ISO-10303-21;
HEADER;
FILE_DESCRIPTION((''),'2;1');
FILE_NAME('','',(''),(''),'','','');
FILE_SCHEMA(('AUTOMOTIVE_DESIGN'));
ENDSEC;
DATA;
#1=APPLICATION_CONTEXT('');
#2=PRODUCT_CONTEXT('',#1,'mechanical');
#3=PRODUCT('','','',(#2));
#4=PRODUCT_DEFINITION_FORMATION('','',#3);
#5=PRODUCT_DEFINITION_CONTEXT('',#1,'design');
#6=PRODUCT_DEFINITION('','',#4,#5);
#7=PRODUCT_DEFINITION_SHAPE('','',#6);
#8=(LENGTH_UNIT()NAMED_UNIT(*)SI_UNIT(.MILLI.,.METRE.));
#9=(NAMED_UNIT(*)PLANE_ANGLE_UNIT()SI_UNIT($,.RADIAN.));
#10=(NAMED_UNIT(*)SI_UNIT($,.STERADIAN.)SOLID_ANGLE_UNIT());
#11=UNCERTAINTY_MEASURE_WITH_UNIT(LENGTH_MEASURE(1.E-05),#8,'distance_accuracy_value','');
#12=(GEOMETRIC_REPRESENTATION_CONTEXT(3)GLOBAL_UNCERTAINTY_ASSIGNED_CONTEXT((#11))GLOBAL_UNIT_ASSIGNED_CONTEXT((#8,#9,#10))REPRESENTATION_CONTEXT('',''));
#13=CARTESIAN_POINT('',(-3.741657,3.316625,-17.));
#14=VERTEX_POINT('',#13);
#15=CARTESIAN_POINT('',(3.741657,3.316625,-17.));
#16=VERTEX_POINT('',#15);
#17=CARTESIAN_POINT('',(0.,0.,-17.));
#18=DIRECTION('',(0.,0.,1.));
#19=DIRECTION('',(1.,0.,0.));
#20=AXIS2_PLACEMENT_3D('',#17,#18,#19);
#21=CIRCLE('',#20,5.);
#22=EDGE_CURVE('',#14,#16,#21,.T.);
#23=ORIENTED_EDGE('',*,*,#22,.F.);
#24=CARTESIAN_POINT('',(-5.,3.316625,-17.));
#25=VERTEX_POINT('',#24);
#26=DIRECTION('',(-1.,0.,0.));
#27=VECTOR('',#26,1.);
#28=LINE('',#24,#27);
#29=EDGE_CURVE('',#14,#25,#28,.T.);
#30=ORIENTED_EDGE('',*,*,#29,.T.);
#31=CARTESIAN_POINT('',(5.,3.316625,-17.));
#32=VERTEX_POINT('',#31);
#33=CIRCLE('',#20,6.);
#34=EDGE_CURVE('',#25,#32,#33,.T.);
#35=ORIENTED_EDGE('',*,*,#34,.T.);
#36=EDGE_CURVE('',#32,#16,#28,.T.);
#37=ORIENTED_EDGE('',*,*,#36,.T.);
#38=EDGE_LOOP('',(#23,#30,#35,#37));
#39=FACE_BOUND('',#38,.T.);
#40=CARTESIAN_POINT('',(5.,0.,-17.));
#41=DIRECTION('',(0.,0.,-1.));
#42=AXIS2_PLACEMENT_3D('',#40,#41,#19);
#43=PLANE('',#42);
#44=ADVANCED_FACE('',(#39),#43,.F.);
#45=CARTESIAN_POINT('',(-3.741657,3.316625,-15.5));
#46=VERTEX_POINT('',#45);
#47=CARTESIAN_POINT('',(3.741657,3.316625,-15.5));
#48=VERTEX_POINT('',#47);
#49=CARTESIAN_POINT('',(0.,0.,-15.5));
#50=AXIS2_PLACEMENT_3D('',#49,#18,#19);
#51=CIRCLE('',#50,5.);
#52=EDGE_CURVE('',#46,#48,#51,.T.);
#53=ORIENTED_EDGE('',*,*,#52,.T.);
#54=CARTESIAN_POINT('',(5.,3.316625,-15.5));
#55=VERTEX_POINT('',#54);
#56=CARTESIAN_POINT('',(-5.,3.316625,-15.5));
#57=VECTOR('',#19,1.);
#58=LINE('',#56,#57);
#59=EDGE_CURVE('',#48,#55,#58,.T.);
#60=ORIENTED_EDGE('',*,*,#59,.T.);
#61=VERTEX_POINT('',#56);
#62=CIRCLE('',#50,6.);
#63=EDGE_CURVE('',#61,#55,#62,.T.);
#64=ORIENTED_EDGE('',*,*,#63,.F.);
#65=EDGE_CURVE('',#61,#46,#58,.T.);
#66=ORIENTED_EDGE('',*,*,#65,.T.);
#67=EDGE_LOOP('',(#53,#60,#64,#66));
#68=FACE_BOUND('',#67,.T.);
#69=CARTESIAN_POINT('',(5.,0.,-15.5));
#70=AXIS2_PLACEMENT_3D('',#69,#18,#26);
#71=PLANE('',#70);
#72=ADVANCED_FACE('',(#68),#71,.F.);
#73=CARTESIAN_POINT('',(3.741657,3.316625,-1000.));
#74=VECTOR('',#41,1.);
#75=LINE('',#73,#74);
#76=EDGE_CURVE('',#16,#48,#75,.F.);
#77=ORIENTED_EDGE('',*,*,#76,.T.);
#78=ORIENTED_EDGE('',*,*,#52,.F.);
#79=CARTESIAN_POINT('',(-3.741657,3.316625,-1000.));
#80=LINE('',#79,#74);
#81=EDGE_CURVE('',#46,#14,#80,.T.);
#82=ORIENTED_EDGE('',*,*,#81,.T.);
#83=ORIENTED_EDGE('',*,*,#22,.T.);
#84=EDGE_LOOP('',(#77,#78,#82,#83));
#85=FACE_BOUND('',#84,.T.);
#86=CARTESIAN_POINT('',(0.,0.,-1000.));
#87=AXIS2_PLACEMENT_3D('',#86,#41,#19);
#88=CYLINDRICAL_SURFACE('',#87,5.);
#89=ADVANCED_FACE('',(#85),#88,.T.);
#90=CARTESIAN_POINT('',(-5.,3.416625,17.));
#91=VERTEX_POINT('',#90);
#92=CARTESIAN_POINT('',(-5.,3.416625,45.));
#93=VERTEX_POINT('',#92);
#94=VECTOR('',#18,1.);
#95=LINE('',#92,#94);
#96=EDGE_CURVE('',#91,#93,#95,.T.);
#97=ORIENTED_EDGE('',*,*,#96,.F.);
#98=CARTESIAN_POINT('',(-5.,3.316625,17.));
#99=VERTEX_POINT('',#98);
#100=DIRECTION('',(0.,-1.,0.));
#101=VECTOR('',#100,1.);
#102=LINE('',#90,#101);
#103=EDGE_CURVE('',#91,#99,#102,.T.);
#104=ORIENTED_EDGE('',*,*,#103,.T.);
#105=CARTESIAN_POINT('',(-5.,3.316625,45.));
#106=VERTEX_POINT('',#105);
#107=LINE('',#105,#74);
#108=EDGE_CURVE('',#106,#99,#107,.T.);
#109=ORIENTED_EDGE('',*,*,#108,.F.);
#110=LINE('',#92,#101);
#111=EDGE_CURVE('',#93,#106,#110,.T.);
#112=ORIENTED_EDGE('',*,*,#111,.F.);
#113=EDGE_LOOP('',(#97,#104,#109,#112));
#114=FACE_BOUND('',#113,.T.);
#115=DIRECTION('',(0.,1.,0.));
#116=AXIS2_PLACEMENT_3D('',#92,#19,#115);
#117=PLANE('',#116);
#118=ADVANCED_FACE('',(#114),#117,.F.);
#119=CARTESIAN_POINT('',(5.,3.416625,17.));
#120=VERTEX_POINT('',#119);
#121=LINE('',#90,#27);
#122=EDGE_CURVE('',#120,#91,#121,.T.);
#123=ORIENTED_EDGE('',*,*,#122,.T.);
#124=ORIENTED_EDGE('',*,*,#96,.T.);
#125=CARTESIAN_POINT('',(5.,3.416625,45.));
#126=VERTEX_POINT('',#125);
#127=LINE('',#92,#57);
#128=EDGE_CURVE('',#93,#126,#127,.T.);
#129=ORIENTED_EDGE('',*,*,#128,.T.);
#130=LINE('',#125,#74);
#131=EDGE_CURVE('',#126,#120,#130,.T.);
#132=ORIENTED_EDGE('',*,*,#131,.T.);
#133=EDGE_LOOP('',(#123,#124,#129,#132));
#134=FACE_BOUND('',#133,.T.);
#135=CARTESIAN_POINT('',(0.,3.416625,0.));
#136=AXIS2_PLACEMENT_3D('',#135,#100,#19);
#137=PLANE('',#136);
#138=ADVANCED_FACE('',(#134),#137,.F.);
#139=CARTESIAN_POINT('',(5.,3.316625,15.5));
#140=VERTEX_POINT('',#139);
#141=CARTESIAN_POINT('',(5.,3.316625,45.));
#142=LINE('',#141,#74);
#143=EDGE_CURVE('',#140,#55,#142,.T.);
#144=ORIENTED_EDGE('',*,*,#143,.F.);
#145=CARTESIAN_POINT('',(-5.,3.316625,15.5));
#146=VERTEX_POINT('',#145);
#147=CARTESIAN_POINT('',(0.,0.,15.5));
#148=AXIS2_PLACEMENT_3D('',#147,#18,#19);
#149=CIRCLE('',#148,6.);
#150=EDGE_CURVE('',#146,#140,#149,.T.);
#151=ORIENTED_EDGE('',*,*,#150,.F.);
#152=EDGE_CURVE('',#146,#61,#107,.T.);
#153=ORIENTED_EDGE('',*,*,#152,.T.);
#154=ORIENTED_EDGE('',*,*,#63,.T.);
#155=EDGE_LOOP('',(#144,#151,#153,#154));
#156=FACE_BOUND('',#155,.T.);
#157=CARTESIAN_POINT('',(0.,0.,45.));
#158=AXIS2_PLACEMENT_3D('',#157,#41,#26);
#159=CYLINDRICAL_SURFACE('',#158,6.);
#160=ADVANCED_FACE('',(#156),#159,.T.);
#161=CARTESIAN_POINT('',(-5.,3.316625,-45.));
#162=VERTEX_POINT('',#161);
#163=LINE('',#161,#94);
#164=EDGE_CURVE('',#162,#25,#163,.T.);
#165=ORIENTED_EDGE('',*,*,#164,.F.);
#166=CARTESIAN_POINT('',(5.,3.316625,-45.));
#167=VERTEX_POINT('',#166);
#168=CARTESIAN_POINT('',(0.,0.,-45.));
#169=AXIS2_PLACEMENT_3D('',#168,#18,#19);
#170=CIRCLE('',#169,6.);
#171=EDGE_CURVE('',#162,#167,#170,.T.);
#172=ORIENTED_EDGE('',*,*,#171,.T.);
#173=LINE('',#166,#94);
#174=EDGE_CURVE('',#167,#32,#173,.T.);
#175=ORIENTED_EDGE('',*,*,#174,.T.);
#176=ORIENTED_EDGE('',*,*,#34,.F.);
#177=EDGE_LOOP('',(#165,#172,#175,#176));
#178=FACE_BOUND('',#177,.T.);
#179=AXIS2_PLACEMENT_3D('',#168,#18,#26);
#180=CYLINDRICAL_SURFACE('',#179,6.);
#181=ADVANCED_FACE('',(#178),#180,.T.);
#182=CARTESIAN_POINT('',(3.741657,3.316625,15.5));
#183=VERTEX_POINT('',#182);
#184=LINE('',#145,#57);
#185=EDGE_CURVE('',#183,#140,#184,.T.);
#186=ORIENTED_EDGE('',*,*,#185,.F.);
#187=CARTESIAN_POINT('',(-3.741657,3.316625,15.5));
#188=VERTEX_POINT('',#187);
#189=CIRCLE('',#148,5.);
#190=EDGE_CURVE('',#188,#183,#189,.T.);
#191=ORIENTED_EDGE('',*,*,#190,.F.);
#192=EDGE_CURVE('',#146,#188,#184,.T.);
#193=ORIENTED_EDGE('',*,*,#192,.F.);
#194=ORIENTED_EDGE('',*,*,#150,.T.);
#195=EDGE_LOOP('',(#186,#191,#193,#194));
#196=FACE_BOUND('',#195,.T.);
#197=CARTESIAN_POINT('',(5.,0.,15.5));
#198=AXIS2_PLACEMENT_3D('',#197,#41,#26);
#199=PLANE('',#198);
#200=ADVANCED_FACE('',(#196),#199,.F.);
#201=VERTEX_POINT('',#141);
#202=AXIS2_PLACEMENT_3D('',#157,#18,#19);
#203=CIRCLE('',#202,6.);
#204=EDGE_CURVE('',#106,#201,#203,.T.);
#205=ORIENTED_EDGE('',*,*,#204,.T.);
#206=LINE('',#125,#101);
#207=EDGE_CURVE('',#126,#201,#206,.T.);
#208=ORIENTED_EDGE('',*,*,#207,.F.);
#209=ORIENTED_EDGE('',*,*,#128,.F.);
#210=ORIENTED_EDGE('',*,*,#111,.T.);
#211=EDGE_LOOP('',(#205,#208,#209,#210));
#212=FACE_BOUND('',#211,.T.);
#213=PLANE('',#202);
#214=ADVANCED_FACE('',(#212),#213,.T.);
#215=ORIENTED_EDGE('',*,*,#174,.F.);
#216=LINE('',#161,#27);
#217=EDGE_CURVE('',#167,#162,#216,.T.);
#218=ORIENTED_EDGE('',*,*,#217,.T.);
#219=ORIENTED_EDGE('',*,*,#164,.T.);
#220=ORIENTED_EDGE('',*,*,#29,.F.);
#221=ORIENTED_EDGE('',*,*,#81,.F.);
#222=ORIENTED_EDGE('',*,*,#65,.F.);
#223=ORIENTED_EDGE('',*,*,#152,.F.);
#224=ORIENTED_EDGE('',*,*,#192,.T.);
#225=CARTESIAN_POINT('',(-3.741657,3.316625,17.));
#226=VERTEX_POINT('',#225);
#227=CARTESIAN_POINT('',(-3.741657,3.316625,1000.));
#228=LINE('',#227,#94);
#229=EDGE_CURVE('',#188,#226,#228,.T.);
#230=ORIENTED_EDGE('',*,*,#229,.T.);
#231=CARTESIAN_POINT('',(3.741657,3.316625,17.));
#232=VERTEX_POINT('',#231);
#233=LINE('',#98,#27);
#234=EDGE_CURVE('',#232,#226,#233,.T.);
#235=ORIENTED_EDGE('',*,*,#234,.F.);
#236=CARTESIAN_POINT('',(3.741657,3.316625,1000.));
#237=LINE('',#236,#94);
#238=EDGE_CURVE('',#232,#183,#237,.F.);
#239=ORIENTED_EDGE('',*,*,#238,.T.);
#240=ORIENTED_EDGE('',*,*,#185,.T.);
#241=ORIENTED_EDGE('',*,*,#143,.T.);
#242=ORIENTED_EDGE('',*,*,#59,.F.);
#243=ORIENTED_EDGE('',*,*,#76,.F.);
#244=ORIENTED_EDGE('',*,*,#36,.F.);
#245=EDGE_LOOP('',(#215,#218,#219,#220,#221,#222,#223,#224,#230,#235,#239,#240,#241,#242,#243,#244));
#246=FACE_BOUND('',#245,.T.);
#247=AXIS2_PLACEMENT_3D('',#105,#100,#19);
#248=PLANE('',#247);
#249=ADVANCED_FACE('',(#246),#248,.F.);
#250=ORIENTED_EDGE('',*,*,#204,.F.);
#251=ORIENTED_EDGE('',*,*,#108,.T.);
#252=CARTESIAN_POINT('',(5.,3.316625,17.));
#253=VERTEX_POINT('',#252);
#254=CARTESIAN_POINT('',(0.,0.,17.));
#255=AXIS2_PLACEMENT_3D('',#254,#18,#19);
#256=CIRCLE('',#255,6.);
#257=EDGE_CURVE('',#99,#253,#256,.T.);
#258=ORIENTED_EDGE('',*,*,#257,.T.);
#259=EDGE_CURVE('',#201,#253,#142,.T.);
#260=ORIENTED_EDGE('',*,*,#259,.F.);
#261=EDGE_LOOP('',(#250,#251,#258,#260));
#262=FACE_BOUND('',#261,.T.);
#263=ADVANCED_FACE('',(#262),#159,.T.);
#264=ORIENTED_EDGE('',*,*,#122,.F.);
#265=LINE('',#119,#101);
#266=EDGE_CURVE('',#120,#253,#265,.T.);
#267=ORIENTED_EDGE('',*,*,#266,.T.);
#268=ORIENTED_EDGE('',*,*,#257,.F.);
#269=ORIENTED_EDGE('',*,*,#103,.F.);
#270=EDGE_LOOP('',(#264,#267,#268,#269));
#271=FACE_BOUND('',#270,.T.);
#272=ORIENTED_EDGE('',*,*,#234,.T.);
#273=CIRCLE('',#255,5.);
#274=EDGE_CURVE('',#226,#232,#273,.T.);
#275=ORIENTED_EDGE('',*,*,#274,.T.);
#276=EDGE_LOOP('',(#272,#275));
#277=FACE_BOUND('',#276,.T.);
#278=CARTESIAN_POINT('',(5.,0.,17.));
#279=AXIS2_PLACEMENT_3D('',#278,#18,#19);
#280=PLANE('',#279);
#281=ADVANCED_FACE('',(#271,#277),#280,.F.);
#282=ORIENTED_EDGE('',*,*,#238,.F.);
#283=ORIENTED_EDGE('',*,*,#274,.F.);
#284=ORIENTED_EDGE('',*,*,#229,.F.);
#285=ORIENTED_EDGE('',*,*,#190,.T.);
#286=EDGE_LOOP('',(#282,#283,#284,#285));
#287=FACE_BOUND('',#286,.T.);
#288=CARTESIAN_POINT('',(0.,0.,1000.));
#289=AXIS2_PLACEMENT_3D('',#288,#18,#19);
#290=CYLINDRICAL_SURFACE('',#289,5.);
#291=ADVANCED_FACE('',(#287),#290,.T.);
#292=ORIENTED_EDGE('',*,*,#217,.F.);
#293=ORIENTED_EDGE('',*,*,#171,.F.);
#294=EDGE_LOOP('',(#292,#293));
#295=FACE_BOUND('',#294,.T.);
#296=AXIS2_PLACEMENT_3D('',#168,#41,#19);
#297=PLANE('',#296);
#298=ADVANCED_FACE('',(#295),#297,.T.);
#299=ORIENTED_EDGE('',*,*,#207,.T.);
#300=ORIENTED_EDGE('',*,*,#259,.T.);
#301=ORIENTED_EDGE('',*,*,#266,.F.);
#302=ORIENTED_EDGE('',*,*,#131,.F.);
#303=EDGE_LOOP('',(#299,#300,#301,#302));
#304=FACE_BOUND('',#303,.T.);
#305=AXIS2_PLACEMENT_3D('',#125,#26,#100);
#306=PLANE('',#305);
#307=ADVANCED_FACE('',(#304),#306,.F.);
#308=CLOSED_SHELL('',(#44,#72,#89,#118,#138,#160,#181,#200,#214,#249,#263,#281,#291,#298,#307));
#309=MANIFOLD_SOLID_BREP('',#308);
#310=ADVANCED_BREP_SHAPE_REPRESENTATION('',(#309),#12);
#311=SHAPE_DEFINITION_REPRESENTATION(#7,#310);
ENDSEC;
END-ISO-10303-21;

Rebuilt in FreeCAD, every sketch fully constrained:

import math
import FreeCAD as App
import Part
import Sketcher
from FreeCAD import Vector

doc = App.newDocument("Part")
params = doc.addObject("Spreadsheet::Sheet", "Params")
for row, (alias, value) in enumerate([
    ("sketch1_radius", "6 mm"),
    ("sketch1_width", "10 mm"),
    ("pad1_length", "45 mm"),
    ("sketch2_width", "1 mm"),
    ("sketch2_height", "1.5 mm"),
    ("groove_angle", "360 deg"),
    ("sketch3_width", "10 mm"),
    ("sketch3_height", "28 mm"),
    ("pad2_length", "0.1 mm"),
], start=1):
    params.set(f"A{row}", alias)
    params.set(f"B{row}", "=" + value)
    params.setAlias(f"B{row}", alias)

body = doc.addObject("PartDesign::Body", "Body")

sketch1 = doc.addObject("Sketcher::SketchObject", "Sketch")
body.addObject(sketch1)
sketch1.AttachmentSupport = (doc.XY_Plane, [""])
sketch1.MapMode = "FlatFace"
sketch1.addGeometry([
    Part.LineSegment(Vector(5, 3, 0), Vector(-5, 3, 0)),
    Part.ArcOfCircle(Part.Circle(Vector(0, 0, 0), Vector(0, 0, 1), 6), math.radians(146), math.radians(394)),
], False)
sketch1.addConstraint([
    Sketcher.Constraint("Coincident", 0, 1, 1, 2),
    Sketcher.Constraint("Coincident", 1, 1, 0, 2),
    Sketcher.Constraint("Horizontal", 0),
    Sketcher.Constraint("Coincident", 1, 3, -1, 1),
    Sketcher.Constraint("Radius", 1, 6.0),
    Sketcher.Constraint("DistanceX", 0, 2, 0, 1, 10.0),
])
sketch1.setExpression("Constraints[4]", "Params.sketch1_radius")
sketch1.setExpression("Constraints[5]", "Params.sketch1_width")
pad1 = doc.addObject("PartDesign::Pad", "Pad")
body.addObject(pad1)
pad1.Profile = sketch1
pad1.setExpression("Length", "Params.pad1_length")

sketch2 = doc.addObject("Sketcher::SketchObject", "Sketch001")
body.addObject(sketch2)
sketch2.AttachmentSupport = (doc.XZ_Plane, [""])
sketch2.MapMode = "FlatFace"
sketch2.addGeometry([
    Part.LineSegment(Vector(5, 15.5, 0), Vector(5, 17, 0)),
    Part.LineSegment(Vector(5, 17, 0), Vector(6, 17, 0)),
    Part.LineSegment(Vector(6, 17, 0), Vector(6, 15.5, 0)),
    Part.LineSegment(Vector(6, 15.5, 0), Vector(5, 15.5, 0)),
], False)
sketch2.addConstraint([
    Sketcher.Constraint("Coincident", 0, 2, 1, 1),
    Sketcher.Constraint("Coincident", 1, 2, 2, 1),
    Sketcher.Constraint("Coincident", 2, 2, 3, 1),
    Sketcher.Constraint("Coincident", 3, 2, 0, 1),
    Sketcher.Constraint("Vertical", 0),
    Sketcher.Constraint("Horizontal", 1),
    Sketcher.Constraint("Vertical", 2),
    Sketcher.Constraint("Horizontal", 3),
    Sketcher.Constraint("DistanceX", 1, 1, 1, 2, 1.0),
    Sketcher.Constraint("DistanceY", 0, 1, 0, 2, 1.5),
    Sketcher.Constraint("DistanceX", -1, 1, 0, 2, 5.0),
    Sketcher.Constraint("DistanceY", -1, 1, 0, 2, 17.0),
])
sketch2.setExpression("Constraints[8]", "Params.sketch2_width")
sketch2.setExpression("Constraints[9]", "Params.sketch2_height")
groove = doc.addObject("PartDesign::Groove", "Groove")
body.addObject(groove)
groove.Profile = sketch2
groove.ReferenceAxis = (sketch2, ["V_Axis"])
groove.setExpression("Angle", "Params.groove_angle")
body2 = doc.addObject("PartDesign::Body", "Body001")
doc.recompute()

body2.BaseFeature = body
doc.recompute()

mirroring = doc.addObject("Part::Mirroring", "Mirroring")
mirroring.Source = body
mirroring.Base = Vector(0, 0, 0)
mirroring.Normal = Vector(0, 0, 1)
body3 = doc.addObject("PartDesign::Body", "Body002")
body3.BaseFeature = mirroring
boolean = doc.addObject("PartDesign::Boolean", "Boolean")
body2.addObject(boolean)
boolean.Type = "Fuse"
boolean.addObjects([body3])
doc.recompute()

sketch3 = doc.addObject("Sketcher::SketchObject", "Sketch002")
body2.addObject(sketch3)
sketch3.AttachmentSupport = (doc.getObject("XZ_Plane001"), [""])
sketch3.MapMode = "FlatFace"
sketch3.AttachmentOffset = App.Placement(Vector(0, 0, -3.316625), App.Rotation())
sketch3.addGeometry([
    Part.LineSegment(Vector(-5, 17, 0), Vector(-5, 45, 0)),
    Part.LineSegment(Vector(-5, 45, 0), Vector(5, 45, 0)),
    Part.LineSegment(Vector(5, 45, 0), Vector(5, 17, 0)),
    Part.LineSegment(Vector(5, 17, 0), Vector(-5, 17, 0)),
], False)
sketch3.addConstraint([
    Sketcher.Constraint("Coincident", 0, 2, 1, 1),
    Sketcher.Constraint("Coincident", 1, 2, 2, 1),
    Sketcher.Constraint("Coincident", 2, 2, 3, 1),
    Sketcher.Constraint("Coincident", 3, 2, 0, 1),
    Sketcher.Constraint("Vertical", 0),
    Sketcher.Constraint("Horizontal", 1),
    Sketcher.Constraint("Vertical", 2),
    Sketcher.Constraint("Horizontal", 3),
    Sketcher.Constraint("DistanceX", 1, 1, 1, 2, 10.0),
    Sketcher.Constraint("DistanceY", 0, 1, 0, 2, 28.0),
    Sketcher.Constraint("DistanceX", 0, 2, -1, 1, 5.0),
    Sketcher.Constraint("DistanceY", -1, 1, 0, 2, 45.0),
])
sketch3.setExpression("Constraints[8]", "Params.sketch3_width")
sketch3.setExpression("Constraints[9]", "Params.sketch3_height")
pad2 = doc.addObject("PartDesign::Pad", "Pad001")
body2.addObject(pad2)
pad2.Profile = sketch3
pad2.setExpression("Length", "Params.pad2_length")
pad2.Reversed = True
mirroring.Visibility = False

doc.recompute()
